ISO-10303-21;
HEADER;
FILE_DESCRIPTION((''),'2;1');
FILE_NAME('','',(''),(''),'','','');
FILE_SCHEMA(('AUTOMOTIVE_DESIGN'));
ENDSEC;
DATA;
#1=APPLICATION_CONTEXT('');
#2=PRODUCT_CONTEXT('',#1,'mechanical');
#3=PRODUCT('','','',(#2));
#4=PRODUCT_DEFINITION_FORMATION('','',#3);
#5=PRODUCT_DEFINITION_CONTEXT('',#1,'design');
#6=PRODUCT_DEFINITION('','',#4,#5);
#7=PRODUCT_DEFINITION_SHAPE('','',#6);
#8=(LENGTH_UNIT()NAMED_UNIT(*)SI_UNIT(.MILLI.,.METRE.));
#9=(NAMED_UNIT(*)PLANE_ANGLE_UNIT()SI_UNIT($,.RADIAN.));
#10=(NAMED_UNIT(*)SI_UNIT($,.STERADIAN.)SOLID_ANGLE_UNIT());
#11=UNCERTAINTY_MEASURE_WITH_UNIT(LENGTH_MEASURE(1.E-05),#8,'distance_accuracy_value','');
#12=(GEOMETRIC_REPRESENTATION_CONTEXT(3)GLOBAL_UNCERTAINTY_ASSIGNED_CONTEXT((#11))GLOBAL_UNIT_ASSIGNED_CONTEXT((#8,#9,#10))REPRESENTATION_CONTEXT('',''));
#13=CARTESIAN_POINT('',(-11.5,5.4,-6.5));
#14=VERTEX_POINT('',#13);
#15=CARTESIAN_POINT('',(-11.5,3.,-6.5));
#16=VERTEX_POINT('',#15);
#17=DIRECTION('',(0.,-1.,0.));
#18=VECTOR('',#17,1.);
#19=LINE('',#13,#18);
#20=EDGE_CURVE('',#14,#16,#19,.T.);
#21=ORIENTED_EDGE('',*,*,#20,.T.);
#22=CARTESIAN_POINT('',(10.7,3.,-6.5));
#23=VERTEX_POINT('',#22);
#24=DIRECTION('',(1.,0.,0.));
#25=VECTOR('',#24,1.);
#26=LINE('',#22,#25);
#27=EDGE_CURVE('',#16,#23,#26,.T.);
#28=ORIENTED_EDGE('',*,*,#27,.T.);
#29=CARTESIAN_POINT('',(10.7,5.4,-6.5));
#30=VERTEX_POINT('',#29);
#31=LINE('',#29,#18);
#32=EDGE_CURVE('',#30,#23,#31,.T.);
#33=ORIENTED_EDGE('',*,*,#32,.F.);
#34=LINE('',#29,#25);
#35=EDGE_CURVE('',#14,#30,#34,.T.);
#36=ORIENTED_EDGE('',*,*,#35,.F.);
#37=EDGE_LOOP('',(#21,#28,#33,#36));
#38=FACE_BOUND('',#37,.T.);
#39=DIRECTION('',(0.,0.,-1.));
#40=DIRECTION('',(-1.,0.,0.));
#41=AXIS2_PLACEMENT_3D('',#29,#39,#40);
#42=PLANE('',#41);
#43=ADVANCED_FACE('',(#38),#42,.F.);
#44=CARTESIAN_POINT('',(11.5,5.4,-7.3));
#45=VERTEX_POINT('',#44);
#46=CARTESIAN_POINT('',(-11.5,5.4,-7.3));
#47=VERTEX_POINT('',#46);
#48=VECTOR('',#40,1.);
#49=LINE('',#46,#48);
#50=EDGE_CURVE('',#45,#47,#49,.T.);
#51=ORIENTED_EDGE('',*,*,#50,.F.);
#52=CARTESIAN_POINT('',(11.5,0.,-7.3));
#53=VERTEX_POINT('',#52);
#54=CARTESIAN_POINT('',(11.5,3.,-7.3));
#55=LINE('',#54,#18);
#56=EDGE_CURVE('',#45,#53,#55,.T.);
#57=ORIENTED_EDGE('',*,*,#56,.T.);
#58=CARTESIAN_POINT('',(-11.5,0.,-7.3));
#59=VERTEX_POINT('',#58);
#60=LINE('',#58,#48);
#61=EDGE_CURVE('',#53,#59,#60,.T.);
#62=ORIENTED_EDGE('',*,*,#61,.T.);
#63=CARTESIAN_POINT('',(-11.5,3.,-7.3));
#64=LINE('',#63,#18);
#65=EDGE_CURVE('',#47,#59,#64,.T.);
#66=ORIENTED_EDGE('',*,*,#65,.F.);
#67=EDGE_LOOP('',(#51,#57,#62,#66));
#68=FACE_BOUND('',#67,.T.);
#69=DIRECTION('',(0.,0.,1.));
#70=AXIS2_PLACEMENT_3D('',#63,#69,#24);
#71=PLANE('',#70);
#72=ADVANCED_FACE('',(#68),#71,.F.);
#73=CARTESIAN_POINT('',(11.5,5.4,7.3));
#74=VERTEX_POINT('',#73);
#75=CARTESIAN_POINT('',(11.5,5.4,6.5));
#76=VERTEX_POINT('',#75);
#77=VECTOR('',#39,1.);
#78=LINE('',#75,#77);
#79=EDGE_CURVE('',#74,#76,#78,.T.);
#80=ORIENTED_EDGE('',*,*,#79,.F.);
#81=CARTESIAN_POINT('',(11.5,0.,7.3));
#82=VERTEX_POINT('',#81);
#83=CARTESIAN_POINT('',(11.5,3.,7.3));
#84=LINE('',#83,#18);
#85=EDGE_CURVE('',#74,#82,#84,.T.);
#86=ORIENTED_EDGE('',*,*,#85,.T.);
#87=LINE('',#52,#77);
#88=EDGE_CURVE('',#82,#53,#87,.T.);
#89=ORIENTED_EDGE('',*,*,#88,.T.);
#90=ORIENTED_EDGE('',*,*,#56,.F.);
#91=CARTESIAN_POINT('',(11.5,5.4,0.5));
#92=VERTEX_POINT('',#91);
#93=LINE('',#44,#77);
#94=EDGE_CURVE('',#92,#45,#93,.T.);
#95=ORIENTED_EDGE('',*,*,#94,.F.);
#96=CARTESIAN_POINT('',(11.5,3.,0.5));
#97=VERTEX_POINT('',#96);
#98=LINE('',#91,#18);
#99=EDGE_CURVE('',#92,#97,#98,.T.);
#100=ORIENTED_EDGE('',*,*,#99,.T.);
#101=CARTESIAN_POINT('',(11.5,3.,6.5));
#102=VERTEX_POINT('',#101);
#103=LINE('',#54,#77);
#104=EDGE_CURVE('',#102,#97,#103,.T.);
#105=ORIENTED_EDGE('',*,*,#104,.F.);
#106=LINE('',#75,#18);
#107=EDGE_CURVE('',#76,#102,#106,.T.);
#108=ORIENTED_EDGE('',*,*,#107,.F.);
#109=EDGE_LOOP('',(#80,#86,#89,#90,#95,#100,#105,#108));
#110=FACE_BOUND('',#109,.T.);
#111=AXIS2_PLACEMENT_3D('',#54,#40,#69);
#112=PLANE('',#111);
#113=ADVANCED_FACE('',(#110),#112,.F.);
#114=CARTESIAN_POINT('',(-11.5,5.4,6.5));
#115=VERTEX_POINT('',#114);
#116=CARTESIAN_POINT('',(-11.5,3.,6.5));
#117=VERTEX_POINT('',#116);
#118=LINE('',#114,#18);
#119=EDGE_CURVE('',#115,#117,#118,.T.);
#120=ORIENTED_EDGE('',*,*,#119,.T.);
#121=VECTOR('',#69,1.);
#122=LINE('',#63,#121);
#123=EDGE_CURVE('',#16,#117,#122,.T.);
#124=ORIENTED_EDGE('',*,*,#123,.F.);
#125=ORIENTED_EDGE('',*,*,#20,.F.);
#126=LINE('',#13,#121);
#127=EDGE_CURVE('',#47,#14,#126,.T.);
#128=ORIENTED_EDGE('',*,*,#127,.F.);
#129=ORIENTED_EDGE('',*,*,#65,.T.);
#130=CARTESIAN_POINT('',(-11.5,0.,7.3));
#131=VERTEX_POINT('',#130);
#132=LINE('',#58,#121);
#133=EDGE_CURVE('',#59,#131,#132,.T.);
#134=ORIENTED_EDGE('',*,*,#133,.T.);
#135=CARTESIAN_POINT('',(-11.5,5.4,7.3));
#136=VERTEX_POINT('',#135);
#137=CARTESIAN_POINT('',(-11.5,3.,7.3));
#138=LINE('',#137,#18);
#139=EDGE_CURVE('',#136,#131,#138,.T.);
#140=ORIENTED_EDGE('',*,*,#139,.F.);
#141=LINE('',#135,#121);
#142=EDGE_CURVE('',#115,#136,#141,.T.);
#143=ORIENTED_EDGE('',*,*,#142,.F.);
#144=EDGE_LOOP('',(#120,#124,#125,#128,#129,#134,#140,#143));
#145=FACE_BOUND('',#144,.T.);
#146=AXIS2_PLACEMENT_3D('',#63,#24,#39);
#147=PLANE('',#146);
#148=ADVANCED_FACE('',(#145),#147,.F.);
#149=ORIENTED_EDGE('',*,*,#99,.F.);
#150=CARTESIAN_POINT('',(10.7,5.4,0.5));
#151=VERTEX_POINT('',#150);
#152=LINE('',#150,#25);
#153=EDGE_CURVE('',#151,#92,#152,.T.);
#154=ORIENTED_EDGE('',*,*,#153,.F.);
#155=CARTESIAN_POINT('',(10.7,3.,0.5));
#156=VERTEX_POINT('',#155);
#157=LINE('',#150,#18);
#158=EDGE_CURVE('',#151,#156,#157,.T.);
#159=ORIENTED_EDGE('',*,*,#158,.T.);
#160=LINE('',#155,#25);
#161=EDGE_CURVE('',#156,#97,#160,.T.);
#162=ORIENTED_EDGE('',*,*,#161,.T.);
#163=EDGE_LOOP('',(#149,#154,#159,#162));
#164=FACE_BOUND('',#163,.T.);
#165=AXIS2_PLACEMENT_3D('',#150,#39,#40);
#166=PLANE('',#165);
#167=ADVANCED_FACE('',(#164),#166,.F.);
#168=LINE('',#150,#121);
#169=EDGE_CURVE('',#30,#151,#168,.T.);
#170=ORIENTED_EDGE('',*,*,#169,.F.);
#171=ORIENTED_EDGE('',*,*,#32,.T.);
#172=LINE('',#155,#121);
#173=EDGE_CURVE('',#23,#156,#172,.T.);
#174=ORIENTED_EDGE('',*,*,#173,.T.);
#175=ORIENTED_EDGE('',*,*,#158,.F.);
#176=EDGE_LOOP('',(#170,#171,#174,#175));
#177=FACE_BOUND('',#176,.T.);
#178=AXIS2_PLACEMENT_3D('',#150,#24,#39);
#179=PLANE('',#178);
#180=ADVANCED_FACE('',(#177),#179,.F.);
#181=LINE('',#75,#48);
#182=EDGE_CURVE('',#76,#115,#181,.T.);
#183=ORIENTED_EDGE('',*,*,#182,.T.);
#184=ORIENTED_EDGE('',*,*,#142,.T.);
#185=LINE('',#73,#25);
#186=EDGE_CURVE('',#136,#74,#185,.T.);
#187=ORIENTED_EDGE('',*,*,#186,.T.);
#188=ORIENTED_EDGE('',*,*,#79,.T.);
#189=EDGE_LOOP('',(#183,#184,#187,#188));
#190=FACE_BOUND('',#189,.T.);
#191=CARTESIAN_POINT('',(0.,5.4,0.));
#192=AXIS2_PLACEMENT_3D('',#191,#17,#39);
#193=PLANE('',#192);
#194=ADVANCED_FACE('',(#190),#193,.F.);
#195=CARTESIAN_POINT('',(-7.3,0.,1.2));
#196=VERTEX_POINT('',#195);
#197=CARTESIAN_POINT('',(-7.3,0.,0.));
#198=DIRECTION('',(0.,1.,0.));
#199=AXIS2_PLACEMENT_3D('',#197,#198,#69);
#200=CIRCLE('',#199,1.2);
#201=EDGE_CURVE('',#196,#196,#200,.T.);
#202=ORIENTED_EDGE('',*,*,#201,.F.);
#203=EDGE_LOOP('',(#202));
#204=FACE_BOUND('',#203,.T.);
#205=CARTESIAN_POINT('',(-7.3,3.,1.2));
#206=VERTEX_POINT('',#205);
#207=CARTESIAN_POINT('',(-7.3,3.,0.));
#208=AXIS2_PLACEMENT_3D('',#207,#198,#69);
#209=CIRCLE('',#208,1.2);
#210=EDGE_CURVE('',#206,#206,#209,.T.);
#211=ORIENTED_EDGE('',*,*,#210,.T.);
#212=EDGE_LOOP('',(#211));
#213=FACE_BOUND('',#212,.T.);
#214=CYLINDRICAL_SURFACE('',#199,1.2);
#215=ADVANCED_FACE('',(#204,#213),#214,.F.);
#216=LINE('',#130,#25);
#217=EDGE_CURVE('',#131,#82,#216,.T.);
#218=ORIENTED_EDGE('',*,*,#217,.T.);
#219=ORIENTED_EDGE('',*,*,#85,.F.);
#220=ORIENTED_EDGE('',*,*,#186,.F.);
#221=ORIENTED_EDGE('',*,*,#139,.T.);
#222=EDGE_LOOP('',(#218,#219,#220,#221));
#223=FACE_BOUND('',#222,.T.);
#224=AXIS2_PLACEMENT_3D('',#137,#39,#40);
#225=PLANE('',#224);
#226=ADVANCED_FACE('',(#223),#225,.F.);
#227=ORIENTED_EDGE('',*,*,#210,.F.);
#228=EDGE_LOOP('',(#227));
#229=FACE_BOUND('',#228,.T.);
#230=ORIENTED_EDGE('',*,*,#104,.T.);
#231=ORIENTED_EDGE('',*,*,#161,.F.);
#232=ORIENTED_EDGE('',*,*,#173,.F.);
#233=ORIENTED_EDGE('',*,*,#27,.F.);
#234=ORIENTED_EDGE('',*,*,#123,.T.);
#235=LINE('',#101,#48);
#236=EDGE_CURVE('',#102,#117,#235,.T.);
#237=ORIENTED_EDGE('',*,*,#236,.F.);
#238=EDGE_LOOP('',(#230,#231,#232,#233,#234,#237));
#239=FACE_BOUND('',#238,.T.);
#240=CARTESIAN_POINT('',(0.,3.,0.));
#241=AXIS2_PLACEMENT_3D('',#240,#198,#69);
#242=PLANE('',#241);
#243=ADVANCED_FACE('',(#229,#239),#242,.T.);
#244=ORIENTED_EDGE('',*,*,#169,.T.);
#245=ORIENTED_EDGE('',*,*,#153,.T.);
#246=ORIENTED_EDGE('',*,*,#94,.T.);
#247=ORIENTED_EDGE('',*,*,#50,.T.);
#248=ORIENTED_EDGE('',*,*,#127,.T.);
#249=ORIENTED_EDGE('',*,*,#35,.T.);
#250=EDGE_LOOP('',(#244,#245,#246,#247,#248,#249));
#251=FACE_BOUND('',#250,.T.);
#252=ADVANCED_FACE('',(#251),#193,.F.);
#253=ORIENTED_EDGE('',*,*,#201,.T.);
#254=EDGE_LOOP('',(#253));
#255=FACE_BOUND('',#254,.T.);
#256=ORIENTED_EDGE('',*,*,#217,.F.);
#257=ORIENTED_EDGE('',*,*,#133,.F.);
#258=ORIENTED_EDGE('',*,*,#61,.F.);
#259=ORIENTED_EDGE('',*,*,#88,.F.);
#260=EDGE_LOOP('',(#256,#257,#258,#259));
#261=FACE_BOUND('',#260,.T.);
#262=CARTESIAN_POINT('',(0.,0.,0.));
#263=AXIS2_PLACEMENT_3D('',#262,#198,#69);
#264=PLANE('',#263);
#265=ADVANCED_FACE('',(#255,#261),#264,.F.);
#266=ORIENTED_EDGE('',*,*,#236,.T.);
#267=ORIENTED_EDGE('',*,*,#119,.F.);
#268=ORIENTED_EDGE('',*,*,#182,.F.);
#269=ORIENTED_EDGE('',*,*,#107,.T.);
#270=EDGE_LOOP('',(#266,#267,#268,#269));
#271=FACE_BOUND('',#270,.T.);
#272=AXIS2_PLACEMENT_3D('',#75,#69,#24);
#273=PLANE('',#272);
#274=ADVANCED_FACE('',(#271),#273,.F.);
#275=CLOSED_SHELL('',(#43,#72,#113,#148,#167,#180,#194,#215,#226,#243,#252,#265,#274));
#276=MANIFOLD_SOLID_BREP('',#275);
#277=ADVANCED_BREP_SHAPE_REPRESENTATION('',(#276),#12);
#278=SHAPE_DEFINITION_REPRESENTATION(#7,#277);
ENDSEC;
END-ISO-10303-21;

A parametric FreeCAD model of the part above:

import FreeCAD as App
import Part
import Sketcher
from FreeCAD import Vector

doc = App.newDocument("Part")
body = doc.addObject("PartDesign::Body", "Body")

# Sketch on XZ plane
sketch1 = body.newObject("Sketcher::SketchObject", "Sketch")
sketch1.AttachmentSupport = (doc.getObject("XZ_Plane"), [""])
sketch1.MapMode = "FlatFace"
sketch1.addGeometry([
    Part.LineSegment(Vector(-12, -7, 0), Vector(-12, 7, 0)),
    Part.LineSegment(Vector(-12, 7, 0), Vector(12, 7, 0)),
    Part.LineSegment(Vector(12, 7, 0), Vector(12, -7, 0)),
    Part.LineSegment(Vector(12, -7, 0), Vector(-12, -7, 0)),
], False)
sketch1.addConstraint([
    Sketcher.Constraint("Coincident", 0, 2, 1, 1),
    Sketcher.Constraint("Coincident", 1, 2, 2, 1),
    Sketcher.Constraint("Coincident", 2, 2, 3, 1),
    Sketcher.Constraint("Coincident", 3, 2, 0, 1),
    Sketcher.Constraint("Vertical", 0),
    Sketcher.Constraint("Horizontal", 1),
    Sketcher.Constraint("Vertical", 2),
    Sketcher.Constraint("Horizontal", 3),
    Sketcher.Constraint("Symmetric", 0, 2, 2, 2, -1, 1),
    Sketcher.Constraint("DistanceX", 1, 1, 1, 2, 23.0),
    Sketcher.Constraint("DistanceY", 0, 1, 0, 2, 14.6),
])
pad1 = body.newObject("PartDesign::Pad", "Pad")
pad1.Profile = sketch1
pad1.Length = 3
pad1.Reversed = True

# Sketch on XZ plane
sketch2 = body.newObject("Sketcher::SketchObject", "Sketch001")
sketch2.AttachmentSupport = (doc.getObject("XZ_Plane"), [""])
sketch2.MapMode = "FlatFace"
sketch2.AttachmentOffset = App.Placement(Vector(0, 0, -3), App.Rotation())
sketch2.addGeometry(Part.Circle(Vector(-7.3, 0, 0), Vector(0, 0, 1), 1.2), False)
sketch2.addConstraint([
    Sketcher.Constraint("PointOnObject", 0, 3, -1),
    Sketcher.Constraint("Diameter", 0, 2.4),
    Sketcher.Constraint("DistanceX", 0, 3, -1, 1, 7.3),
])
pocket1 = body.newObject("PartDesign::Pocket", "Pocket")
pocket1.Profile = sketch2
pocket1.Type = "ThroughAll"
pocket1.Reversed = True

# Sketch on XZ plane
sketch3 = body.newObject("Sketcher::SketchObject", "Sketch002")
sketch3.AttachmentSupport = (doc.getObject("XZ_Plane"), [""])
sketch3.MapMode = "FlatFace"
sketch3.AttachmentOffset = App.Placement(Vector(0, 0, -3), App.Rotation())
sketch3.addGeometry([
    Part.LineSegment(Vector(11.5, -7.3, 0), Vector(-11.5, -7.3, 0)),  # 0
    Part.LineSegment(Vector(-11.5, -7.3, 0), Vector(-11.5, -6.5, 0)),  # 1
    Part.LineSegment(Vector(-11.5, -6.5, 0), Vector(10.7, -6.5, 0)),  # 2
    Part.LineSegment(Vector(10.7, -6.5, 0), Vector(10.7, 0.5, 0)),  # 3
    Part.LineSegment(Vector(10.7, 0.5, 0), Vector(11.5, 0.5, 0)),  # 4
    Part.LineSegment(Vector(11.5, 0.5, 0), Vector(11.5, -7.3, 0)),  # 5
    Part.LineSegment(Vector(-11.5, 6.5, 0), Vector(-11.5, 7.3, 0)),  # 6
    Part.LineSegment(Vector(-11.5, 7.3, 0), Vector(11.5, 7.3, 0)),  # 7
    Part.LineSegment(Vector(11.5, 7.3, 0), Vector(11.5, 6.5, 0)),  # 8
    Part.LineSegment(Vector(11.5, 6.5, 0), Vector(-11.5, 6.5, 0)),  # 9
], False)
sketch3.addConstraint([
    Sketcher.Constraint("Coincident", 0, 2, 1, 1),
    Sketcher.Constraint("Coincident", 1, 2, 2, 1),
    Sketcher.Constraint("Coincident", 2, 2, 3, 1),
    Sketcher.Constraint("Coincident", 3, 2, 4, 1),
    Sketcher.Constraint("Coincident", 4, 2, 5, 1),
    Sketcher.Constraint("Coincident", 5, 2, 0, 1),
    Sketcher.Constraint("Coincident", 6, 2, 7, 1),
    Sketcher.Constraint("Coincident", 7, 2, 8, 1),
    Sketcher.Constraint("Coincident", 8, 2, 9, 1),
    Sketcher.Constraint("Coincident", 9, 2, 6, 1),
    Sketcher.Constraint("Horizontal", 0),
    Sketcher.Constraint("Vertical", 1),
    Sketcher.Constraint("Horizontal", 2),
    Sketcher.Constraint("Vertical", 3),
    Sketcher.Constraint("Horizontal", 4),
    Sketcher.Constraint("Vertical", 5),
    Sketcher.Constraint("Vertical", 6),
    Sketcher.Constraint("Horizontal", 7),
    Sketcher.Constraint("Vertical", 8),
    Sketcher.Constraint("Horizontal", 9),
    Sketcher.Constraint("Symmetric", 5, 2, 6, 2, -1, 1),
    Sketcher.Constraint("Symmetric", 1, 2, 8, 2, -1, 1),
    Sketcher.Constraint("Vertical", 1, 2, 6, 2),
    Sketcher.Constraint("Equal", 4, 1),
    Sketcher.Constraint("DistanceX", 0, 2, 0, 1, 23.0),
    Sketcher.Constraint("DistanceY", 3, 1, 3, 2, 7.0),
    Sketcher.Constraint("DistanceX", 2, 1, 2, 2, 22.2),
    Sketcher.Constraint("DistanceY", 4, 2, 8, 2, 6.0),
])
pad2 = body.newObject("PartDesign::Pad", "Pad001")
pad2.Profile = sketch3
pad2.Length = 2.4
pad2.Reversed = True

doc.recompute()
